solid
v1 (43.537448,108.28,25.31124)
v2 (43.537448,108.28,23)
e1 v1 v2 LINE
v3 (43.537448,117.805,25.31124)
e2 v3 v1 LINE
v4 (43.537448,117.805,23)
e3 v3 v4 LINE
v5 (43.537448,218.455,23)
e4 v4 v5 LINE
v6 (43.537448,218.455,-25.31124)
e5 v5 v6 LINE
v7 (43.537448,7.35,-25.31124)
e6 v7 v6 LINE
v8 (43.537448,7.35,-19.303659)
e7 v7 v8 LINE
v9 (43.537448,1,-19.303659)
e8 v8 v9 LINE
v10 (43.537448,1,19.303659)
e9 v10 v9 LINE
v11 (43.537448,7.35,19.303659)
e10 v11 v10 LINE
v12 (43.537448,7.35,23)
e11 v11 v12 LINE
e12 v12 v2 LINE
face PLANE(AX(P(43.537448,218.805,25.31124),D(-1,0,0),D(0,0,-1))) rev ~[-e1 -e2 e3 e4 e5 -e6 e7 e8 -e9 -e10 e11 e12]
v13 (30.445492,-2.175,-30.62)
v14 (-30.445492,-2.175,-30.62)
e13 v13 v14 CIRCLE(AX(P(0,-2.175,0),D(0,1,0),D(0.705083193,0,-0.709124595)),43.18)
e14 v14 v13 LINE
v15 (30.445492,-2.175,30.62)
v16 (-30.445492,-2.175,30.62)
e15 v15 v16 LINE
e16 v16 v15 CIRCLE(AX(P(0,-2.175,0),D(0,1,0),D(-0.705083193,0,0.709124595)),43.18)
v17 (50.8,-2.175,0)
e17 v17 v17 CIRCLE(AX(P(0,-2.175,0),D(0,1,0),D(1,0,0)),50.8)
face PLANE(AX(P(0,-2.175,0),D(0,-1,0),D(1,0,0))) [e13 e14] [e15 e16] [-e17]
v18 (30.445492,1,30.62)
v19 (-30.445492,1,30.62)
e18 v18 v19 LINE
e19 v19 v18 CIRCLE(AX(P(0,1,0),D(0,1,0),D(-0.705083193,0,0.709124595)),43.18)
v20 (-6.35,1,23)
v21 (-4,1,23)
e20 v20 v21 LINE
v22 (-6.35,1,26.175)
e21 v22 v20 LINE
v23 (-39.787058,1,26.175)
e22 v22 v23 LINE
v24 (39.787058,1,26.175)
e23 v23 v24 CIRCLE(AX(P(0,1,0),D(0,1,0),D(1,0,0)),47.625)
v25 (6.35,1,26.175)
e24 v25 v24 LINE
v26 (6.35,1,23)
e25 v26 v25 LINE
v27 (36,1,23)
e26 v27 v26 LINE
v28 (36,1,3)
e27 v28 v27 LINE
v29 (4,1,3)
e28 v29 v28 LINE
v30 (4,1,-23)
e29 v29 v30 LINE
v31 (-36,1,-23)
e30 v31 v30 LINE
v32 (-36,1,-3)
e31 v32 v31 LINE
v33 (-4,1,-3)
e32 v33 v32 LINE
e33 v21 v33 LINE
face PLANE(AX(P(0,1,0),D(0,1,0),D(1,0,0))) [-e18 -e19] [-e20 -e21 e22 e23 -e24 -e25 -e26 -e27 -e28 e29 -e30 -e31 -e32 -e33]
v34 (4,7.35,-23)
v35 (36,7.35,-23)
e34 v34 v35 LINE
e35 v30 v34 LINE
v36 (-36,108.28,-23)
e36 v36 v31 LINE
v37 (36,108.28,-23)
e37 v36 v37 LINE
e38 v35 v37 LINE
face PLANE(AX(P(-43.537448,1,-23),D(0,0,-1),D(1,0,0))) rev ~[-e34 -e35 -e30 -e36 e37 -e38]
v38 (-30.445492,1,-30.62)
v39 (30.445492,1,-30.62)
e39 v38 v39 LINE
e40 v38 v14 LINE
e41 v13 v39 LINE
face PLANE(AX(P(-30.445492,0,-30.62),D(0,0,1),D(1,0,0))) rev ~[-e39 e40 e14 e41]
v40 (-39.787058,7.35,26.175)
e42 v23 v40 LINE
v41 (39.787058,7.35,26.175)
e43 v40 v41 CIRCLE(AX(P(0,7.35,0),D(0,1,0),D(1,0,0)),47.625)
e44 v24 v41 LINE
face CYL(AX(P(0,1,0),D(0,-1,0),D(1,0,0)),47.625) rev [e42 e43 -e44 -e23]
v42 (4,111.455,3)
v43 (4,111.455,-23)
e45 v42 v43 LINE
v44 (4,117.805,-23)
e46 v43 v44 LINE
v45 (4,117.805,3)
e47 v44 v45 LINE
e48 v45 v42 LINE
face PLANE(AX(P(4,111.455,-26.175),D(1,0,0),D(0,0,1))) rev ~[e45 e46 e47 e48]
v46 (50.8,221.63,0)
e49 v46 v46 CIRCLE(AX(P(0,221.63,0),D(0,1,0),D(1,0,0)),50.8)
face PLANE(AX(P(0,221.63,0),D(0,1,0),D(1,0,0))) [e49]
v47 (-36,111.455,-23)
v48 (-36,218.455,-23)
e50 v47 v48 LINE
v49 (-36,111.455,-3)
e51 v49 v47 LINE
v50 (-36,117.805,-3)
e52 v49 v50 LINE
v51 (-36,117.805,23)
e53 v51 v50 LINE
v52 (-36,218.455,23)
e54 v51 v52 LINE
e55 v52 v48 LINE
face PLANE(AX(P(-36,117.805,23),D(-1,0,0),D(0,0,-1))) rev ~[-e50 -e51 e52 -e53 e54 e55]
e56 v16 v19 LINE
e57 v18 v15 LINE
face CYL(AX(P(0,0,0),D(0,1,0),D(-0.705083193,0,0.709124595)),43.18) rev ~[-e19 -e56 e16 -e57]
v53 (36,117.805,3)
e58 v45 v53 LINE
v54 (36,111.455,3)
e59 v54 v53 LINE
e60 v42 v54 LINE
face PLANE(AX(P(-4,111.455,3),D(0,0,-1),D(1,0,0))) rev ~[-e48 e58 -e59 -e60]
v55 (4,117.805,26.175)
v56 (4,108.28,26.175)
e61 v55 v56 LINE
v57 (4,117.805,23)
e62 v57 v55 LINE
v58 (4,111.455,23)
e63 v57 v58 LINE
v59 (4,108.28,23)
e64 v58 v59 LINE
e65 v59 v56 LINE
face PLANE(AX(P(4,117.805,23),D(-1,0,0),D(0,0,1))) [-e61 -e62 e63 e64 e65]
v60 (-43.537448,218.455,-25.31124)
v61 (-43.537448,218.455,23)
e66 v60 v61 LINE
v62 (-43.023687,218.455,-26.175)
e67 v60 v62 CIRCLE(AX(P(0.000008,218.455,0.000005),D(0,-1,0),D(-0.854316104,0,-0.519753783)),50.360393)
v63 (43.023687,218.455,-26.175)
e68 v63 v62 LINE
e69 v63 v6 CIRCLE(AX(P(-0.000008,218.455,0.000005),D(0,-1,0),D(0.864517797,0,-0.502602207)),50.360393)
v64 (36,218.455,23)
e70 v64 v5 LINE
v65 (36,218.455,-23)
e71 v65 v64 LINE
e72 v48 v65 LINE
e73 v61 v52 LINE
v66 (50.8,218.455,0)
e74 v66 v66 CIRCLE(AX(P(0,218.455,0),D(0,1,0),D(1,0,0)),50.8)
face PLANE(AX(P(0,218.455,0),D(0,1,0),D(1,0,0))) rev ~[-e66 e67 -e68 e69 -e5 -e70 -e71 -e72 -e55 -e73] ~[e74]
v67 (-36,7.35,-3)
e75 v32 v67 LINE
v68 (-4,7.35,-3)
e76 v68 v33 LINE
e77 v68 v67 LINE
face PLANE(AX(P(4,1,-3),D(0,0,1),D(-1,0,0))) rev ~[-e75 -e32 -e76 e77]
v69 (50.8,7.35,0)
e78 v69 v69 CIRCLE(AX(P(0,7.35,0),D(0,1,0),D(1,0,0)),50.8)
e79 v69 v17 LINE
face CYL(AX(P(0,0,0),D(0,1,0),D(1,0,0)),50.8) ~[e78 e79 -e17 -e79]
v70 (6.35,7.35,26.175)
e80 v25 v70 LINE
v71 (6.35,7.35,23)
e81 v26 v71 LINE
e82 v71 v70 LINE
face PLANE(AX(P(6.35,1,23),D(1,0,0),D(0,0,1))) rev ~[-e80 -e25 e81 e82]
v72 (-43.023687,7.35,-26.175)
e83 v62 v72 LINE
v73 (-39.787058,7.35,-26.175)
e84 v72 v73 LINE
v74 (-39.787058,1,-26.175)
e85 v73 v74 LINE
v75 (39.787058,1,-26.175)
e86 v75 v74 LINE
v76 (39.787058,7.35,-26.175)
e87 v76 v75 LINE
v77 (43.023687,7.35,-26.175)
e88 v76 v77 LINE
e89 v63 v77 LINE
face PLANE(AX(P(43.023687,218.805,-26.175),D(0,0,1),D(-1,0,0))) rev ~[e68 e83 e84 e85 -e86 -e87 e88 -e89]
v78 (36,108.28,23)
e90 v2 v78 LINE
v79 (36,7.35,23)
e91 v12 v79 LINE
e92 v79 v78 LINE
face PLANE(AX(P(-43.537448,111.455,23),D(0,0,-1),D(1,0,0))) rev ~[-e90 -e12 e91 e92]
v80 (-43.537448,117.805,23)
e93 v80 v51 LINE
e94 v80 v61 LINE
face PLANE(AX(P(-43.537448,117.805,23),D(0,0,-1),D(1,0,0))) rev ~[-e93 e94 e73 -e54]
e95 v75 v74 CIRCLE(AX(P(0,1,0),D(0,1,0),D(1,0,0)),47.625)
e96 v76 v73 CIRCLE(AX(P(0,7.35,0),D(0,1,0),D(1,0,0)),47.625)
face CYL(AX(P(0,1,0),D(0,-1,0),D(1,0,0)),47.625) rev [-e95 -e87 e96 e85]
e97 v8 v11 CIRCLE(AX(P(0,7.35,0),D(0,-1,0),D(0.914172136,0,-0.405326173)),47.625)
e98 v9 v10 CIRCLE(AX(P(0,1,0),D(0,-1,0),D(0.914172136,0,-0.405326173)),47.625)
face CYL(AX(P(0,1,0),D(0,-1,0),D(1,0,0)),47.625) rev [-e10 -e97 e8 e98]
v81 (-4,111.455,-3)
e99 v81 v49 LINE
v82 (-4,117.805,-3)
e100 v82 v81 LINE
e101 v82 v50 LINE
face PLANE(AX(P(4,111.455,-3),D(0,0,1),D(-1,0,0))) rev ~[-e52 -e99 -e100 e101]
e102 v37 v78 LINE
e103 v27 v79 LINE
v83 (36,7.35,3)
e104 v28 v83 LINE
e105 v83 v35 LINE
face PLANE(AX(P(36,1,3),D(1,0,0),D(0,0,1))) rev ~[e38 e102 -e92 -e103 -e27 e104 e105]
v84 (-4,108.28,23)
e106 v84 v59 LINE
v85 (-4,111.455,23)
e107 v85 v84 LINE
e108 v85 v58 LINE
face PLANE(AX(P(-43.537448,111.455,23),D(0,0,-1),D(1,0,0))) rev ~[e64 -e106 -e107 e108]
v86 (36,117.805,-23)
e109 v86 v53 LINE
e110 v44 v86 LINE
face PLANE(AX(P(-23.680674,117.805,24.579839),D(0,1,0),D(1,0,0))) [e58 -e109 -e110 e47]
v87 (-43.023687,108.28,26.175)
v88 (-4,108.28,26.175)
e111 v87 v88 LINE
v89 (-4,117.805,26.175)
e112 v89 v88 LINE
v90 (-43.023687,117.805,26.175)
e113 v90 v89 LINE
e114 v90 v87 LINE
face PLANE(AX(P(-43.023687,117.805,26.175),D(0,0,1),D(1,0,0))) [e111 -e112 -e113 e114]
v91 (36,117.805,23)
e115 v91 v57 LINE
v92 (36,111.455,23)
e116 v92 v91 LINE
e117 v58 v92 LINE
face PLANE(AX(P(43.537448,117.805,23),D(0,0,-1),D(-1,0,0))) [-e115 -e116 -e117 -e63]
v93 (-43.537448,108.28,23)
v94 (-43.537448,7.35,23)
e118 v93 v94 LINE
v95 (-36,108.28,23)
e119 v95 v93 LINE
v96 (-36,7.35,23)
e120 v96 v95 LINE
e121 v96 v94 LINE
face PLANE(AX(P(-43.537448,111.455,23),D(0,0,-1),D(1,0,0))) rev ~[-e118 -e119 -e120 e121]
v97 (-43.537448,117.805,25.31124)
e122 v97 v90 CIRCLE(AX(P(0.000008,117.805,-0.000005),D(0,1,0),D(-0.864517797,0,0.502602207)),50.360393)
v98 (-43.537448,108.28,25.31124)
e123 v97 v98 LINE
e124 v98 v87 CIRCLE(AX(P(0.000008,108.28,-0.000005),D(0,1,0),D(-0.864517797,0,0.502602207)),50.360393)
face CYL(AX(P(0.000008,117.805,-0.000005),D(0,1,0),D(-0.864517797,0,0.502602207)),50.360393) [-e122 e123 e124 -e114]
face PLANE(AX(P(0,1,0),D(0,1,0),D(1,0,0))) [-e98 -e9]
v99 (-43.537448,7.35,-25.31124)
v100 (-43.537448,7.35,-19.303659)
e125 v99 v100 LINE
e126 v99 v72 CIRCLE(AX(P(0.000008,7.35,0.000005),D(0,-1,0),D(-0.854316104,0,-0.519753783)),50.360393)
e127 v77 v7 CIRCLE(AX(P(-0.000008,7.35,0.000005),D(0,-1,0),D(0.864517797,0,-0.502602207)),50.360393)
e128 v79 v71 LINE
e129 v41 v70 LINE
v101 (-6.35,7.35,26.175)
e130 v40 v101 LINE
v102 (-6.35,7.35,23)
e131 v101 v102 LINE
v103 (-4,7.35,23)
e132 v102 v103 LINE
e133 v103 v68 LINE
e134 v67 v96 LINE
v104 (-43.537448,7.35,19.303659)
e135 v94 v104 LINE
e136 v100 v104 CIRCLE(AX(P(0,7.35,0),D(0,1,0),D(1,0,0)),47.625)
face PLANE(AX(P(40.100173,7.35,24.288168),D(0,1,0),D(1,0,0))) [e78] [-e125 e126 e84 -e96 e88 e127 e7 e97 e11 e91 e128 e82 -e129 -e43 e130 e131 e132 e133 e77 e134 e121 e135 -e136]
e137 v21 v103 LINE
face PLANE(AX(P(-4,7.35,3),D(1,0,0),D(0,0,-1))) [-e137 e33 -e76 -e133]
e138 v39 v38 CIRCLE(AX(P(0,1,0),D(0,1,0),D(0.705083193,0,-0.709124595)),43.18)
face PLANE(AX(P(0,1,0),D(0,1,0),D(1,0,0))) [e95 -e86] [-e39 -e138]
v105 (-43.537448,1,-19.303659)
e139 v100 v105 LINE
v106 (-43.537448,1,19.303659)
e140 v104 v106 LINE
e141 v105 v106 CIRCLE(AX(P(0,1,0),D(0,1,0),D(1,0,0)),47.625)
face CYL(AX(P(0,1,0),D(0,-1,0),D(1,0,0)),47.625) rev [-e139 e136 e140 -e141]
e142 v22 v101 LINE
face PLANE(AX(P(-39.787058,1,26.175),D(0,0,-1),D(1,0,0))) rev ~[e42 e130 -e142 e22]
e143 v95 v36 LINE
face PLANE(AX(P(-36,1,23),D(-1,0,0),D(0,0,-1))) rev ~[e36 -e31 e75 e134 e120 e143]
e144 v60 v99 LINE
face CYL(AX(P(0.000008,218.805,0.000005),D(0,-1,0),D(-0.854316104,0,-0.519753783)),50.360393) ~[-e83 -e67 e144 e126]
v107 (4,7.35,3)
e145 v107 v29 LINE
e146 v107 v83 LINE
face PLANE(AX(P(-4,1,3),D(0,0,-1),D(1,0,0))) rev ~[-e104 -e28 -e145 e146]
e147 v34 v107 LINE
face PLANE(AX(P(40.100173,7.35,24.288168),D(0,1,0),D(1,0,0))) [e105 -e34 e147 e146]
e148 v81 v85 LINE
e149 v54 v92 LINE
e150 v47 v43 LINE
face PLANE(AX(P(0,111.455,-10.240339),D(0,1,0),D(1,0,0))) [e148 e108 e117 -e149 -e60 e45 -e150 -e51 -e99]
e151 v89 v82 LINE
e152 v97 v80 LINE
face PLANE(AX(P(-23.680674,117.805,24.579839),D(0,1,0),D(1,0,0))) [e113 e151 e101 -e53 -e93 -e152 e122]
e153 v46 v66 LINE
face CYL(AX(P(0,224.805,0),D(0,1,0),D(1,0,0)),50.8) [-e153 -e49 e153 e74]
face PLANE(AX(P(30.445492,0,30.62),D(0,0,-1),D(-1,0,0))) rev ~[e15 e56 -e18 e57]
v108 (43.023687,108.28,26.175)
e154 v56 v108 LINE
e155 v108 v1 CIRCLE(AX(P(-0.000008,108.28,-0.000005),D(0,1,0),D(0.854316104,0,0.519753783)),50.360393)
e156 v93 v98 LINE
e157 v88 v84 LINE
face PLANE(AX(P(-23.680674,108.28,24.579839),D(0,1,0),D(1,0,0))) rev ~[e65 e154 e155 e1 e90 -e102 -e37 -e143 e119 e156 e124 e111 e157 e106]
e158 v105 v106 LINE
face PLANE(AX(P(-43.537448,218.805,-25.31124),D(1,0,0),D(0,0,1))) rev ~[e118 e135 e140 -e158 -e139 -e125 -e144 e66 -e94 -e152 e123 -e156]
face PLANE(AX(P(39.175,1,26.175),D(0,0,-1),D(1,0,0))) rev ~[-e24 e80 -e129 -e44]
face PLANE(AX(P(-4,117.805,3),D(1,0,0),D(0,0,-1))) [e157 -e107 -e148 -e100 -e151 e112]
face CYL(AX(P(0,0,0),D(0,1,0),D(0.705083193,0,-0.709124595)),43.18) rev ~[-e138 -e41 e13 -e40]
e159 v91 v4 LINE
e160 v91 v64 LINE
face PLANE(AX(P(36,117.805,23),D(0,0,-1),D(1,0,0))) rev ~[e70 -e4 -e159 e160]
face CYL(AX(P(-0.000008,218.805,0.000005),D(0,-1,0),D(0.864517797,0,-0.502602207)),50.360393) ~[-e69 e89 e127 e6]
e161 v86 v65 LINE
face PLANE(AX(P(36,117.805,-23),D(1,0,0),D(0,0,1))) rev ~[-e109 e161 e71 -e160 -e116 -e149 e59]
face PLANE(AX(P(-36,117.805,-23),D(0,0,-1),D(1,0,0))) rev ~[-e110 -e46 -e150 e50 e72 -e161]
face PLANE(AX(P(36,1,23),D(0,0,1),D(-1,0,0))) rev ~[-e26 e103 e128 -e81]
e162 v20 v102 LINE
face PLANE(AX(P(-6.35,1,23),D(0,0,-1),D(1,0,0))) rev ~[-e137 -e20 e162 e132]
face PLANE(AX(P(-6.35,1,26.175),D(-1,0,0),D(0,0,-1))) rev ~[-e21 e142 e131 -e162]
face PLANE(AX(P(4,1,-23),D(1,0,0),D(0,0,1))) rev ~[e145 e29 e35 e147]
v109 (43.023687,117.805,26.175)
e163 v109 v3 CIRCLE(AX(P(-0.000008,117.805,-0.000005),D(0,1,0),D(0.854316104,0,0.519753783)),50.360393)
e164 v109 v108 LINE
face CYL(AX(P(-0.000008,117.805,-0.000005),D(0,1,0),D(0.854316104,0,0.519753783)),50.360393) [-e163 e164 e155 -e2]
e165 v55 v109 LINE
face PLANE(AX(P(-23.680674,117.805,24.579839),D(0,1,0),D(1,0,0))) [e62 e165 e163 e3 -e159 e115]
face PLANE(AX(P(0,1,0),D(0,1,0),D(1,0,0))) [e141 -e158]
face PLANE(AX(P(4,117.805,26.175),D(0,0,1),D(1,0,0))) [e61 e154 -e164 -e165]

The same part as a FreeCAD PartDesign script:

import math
import FreeCAD as App
import Part
import Sketcher

V = App.Vector

doc = App.newDocument("Part")
params = doc.addObject("Spreadsheet::Sheet", "Params")
for row, (alias, value) in enumerate([
    ("sketch1_diameter", "101.6 mm"),
    ("pad1_length", "1 mm"),
    ("sketch2_width", "40 mm"),
    ("sketch2_height", "20 mm"),
    ("sketch2_width2", "29.65 mm"),
    ("sketch2_height2", "52.35 mm"),
    ("pad2_length", "6.35 mm"),
    ("sketch3_diameter", "101.6 mm"),
    ("sketch3_diameter2", "95.25 mm"),
    ("pad3_length", "6.35 mm"),
    ("sketch4_height", "46 mm"),
    ("pad4_length", "107.28 mm"),
    ("pad5_length", "107.28 mm"),
    ("pad6_length", "3.175 mm"),
    ("sketch7_width", "40 mm"),
    ("sketch7_width2", "32 mm"),
    ("sketch7_height", "20 mm"),
    ("pad7_length", "6.35 mm"),
    ("pad8_length", "6.35 mm"),
    ("pad9_length", "9.525 mm"),
    ("sketch10_width", "72 mm"),
    ("sketch10_height", "46 mm"),
    ("pad10_length", "101 mm"),
    ("sketch11_width", "8 mm"),
    ("sketch11_height", "6.35 mm"),
    ("pad11_length", "3.175 mm"),
    ("sketch12_width", "8 mm"),
    ("sketch12_height", "6 mm"),
    ("pocket1_length", "6.35 mm"),
    ("sketch13_width", "8 mm"),
    ("sketch13_height", "6 mm"),
    ("pocket2_length", "6.35 mm"),
    ("pad12_length", "6 mm"),
    ("sketch15_radius", "43.18 mm"),
    ("sketch16_diameter", "101.6 mm"),
    ("pad13_length", "6.35 mm"),
    ("sketch17_diameter", "101.6 mm"),
    ("pocket4_length", "3.175 mm"),
    ("sketch18_diameter", "101.6 mm"),
    ("sketch18_radius", "43.18 mm"),
    ("pad14_length", "5.35 mm"),
    ("pocket5_length", "3.175 mm"),
], start=1):
    params.set(f"A{row}", alias)
    params.set(f"B{row}", "=" + value)
    params.setAlias(f"B{row}", alias)

body = doc.addObject("PartDesign::Body", "Body")

# Sketch on XZ plane
sketch1 = doc.addObject("Sketcher::SketchObject", "Sketch")
body.addObject(sketch1)
sketch1.AttachmentSupport = (doc.XZ_Plane, [""])
sketch1.MapMode = "FlatFace"
sketch1.addGeometry(Part.Circle(V(0, 0, 0), V(0, 0, 1), 51), False)
sketch1.addConstraint([
    Sketcher.Constraint("Coincident", 0, 3, -1, 1),
    Sketcher.Constraint("Diameter", 0, 101.6),
])
sketch1.setExpression("Constraints[1]", "Params.sketch1_diameter")
pad1 = doc.addObject("PartDesign::Pad", "Pad")
body.addObject(pad1)
pad1.Profile = sketch1
pad1.setExpression("Length", "Params.pad1_length")
pad1.Reversed = True

# Sketch on XZ plane
sketch2 = doc.addObject("Sketcher::SketchObject", "Sketch001")
body.addObject(sketch2)
sketch2.AttachmentSupport = (doc.XZ_Plane, [""])
sketch2.MapMode = "FlatFace"
sketch2.AttachmentOffset = App.Placement(V(0, 0, -1), App.Rotation())
sketch2.addGeometry([
    Part.LineSegment(V(-36, -23, 0), V(-6.3, -23, 0)),  # 0
    Part.LineSegment(V(-6.3, -23, 0), V(-6.3, -26.2, 0)),  # 1
    Part.LineSegment(V(-6.3, -26.2, 0), V(-39.2, -26.2, 0)),  # 2
    Part.LineSegment(V(-39.2, -26.2, 0), V(-39.2, 26.2, 0)),  # 3
    Part.LineSegment(V(-39.2, 26.2, 0), V(-6.3, 26.2, 0)),  # 4
    Part.LineSegment(V(-6.3, 26.2, 0), V(-6.3, 23, 0)),  # 5
    Part.LineSegment(V(-6.3, 23, 0), V(-4, 23, 0)),  # 6
    Part.LineSegment(V(-4, 23, 0), V(-4, 3, 0)),  # 7
    Part.LineSegment(V(-4, 3, 0), V(36, 3, 0)),  # 8
    Part.LineSegment(V(36, 3, 0), V(36, 23, 0)),  # 9
    Part.LineSegment(V(36, 23, 0), V(6.3, 23, 0)),  # 10
    Part.LineSegment(V(6.3, 23, 0), V(6.3, 26.2, 0)),  # 11
    Part.LineSegment(V(6.3, 26.2, 0), V(39.2, 26.2, 0)),  # 12
    Part.LineSegment(V(39.2, 26.2, 0), V(39.2, -26.2, 0)),  # 13
    Part.LineSegment(V(39.2, -26.2, 0), V(6.3, -26.2, 0)),  # 14
    Part.LineSegment(V(6.3, -26.2, 0), V(6.3, -23, 0)),  # 15
    Part.LineSegment(V(6.3, -23, 0), V(4, -23, 0)),  # 16
    Part.LineSegment(V(4, -23, 0), V(4, -3, 0)),  # 17
    Part.LineSegment(V(4, -3, 0), V(-36, -3, 0)),  # 18
    Part.LineSegment(V(-36, -3, 0), V(-36, -23, 0)),  # 19
], False)
sketch2.addConstraint([
    Sketcher.Constraint("Coincident", 0, 2, 1, 1),
    Sketcher.Constraint("Coincident", 1, 2, 2, 1),
    Sketcher.Constraint("Coincident", 2, 2, 3, 1),
    Sketcher.Constraint("Coincident", 3, 2, 4, 1),
    Sketcher.Constraint("Coincident", 4, 2, 5, 1),
    Sketcher.Constraint("Coincident", 5, 2, 6, 1),
    Sketcher.Constraint("Coincident", 6, 2, 7, 1),
    Sketcher.Constraint("Coincident", 7, 2, 8, 1),
    Sketcher.Constraint("Coincident", 8, 2, 9, 1),
    Sketcher.Constraint("Coincident", 9, 2, 10, 1),
    Sketcher.Constraint("Coincident", 10, 2, 11, 1),
    Sketcher.Constraint("Coincident", 11, 2, 12, 1),
    Sketcher.Constraint("Coincident", 12, 2, 13, 1),
    Sketcher.Constraint("Coincident", 13, 2, 14, 1),
    Sketcher.Constraint("Coincident", 14, 2, 15, 1),
    Sketcher.Constraint("Coincident", 15, 2, 16, 1),
    Sketcher.Constraint("Coincident", 16, 2, 17, 1),
    Sketcher.Constraint("Coincident", 17, 2, 18, 1),
    Sketcher.Constraint("Coincident", 18, 2, 19, 1),
    Sketcher.Constraint("Coincident", 19, 2, 0, 1),
    Sketcher.Constraint("Horizontal", 0),
    Sketcher.Constraint("Vertical", 1),
    Sketcher.Constraint("Horizontal", 2),
    Sketcher.Constraint("Vertical", 3),
    Sketcher.Constraint("Horizontal", 4),
    Sketcher.Constraint("Vertical", 5),
    Sketcher.Constraint("Horizontal", 6),
    Sketcher.Constraint("Vertical", 7),
    Sketcher.Constraint("Horizontal", 8),
    Sketcher.Constraint("Vertical", 9),
    Sketcher.Constraint("Horizontal", 10),
    Sketcher.Constraint("Vertical", 11),
    Sketcher.Constraint("Horizontal", 12),
    Sketcher.Constraint("Vertical", 13),
    Sketcher.Constraint("Horizontal", 14),
    Sketcher.Constraint("Vertical", 15),
    Sketcher.Constraint("Horizontal", 16),
    Sketcher.Constraint("Vertical", 17),
    Sketcher.Constraint("Horizontal", 18),
    Sketcher.Constraint("Vertical", 19),
    Sketcher.Constraint("Symmetric", 0, 2, 10, 2, -1, 1),
    Sketcher.Constraint("Symmetric", 2, 2, 12, 2, -1, 1),
    Sketcher.Constraint("Symmetric", 4, 2, 14, 2, -1, 1),
    Sketcher.Constraint("Symmetric", 6, 2, 16, 2, -1, 1),
    Sketcher.Constraint("Symmetric", 8, 2, 18, 2, -1, 1),
    Sketcher.Constraint("Symmetric", 5, 2, 10, 2, -2),
    Sketcher.Constraint("Horizontal", 4, 2, 11, 2),
    Sketcher.Constraint("DistanceX", 8, 1, 8, 2, 40.0),
    Sketcher.Constraint("DistanceY", 7, 2, 7, 1, 20.0),
    Sketcher.Constraint("DistanceY", 0, 2, -1, 1, 23.0),
    Sketcher.Constraint("DistanceX", 6, 2, -1, 1, 4.0),
    Sketcher.Constraint("DistanceX", 0, 1, 0, 2, 29.65),
    Sketcher.Constraint("DistanceY", 3, 1, 3, 2, 52.35),
    Sketcher.Constraint("DistanceX", 2, 2, 2, 1, 32.825),
])
sketch2.setExpression("Constraints[47]", "Params.sketch2_width")
sketch2.setExpression("Constraints[48]", "Params.sketch2_height")
sketch2.setExpression("Constraints[51]", "Params.sketch2_width2")
sketch2.setExpression("Constraints[52]", "Params.sketch2_height2")
pad2 = doc.addObject("PartDesign::Pad", "Pad001")
body.addObject(pad2)
pad2.Profile = sketch2
pad2.setExpression("Length", "Params.pad2_length")
pad2.Reversed = True

# Sketch on XZ plane
sketch3 = doc.addObject("Sketcher::SketchObject", "Sketch002")
body.addObject(sketch3)
sketch3.AttachmentSupport = (doc.XZ_Plane, [""])
sketch3.MapMode = "FlatFace"
sketch3.AttachmentOffset = App.Placement(V(0, 0, -1), App.Rotation())
sketch3.addGeometry([
    Part.Circle(V(0, 0, 0), V(0, 0, 1), 51),
    Part.Circle(V(0, 0, 0), V(0, 0, 1), 48),
], False)
sketch3.addConstraint([
    Sketcher.Constraint("Coincident", 0, 3, -1, 1),
    Sketcher.Constraint("Coincident", 1, 3, -1, 1),
    Sketcher.Constraint("Diameter", 0, 101.6),
    Sketcher.Constraint("Diameter", 1, 95.25),
])
sketch3.setExpression("Constraints[2]", "Params.sketch3_diameter")
sketch3.setExpression("Constraints[3]", "Params.sketch3_diameter2")
pad3 = doc.addObject("PartDesign::Pad", "Pad002")
body.addObject(pad3)
pad3.Profile = sketch3
pad3.setExpression("Length", "Params.pad3_length")
pad3.Reversed = True

# Sketch on XZ plane
sketch4 = doc.addObject("Sketcher::SketchObject", "Sketch003")
body.addObject(sketch4)
sketch4.AttachmentSupport = (doc.XZ_Plane, [""])
sketch4.MapMode = "FlatFace"
sketch4.AttachmentOffset = App.Placement(V(0, 0, -1), App.Rotation())
sketch4.addGeometry([
    Part.LineSegment(V(-44, 23, 0), V(-36, 23, 0)),  # 0
    Part.LineSegment(V(-36, 23, 0), V(-36, -23, 0)),  # 1
    Part.LineSegment(V(-36, -23, 0), V(-44, -23, 0)),  # 2
    Part.LineSegment(V(-44, -23, 0), V(-44, 23, 0)),  # 3
    Part.LineSegment(V(36, -23, 0), V(36, 23, 0)),  # 4
    Part.LineSegment(V(36, 23, 0), V(44, 23, 0)),  # 5
    Part.LineSegment(V(44, 23, 0), V(44, -23, 0)),  # 6
    Part.LineSegment(V(44, -23, 0), V(36, -23, 0)),  # 7
], False)
sketch4.addConstraint([
    Sketcher.Constraint("Coincident", 0, 2, 1, 1),
    Sketcher.Constraint("Coincident", 1, 2, 2, 1),
    Sketcher.Constraint("Coincident", 2, 2, 3, 1),
    Sketcher.Constraint("Coincident", 3, 2, 0, 1),
    Sketcher.Constraint("Coincident", 4, 2, 5, 1),
    Sketcher.Constraint("Coincident", 5, 2, 6, 1),
    Sketcher.Constraint("Coincident", 6, 2, 7, 1),
    Sketcher.Constraint("Coincident", 7, 2, 4, 1),
    Sketcher.Constraint("Horizontal", 0),
    Sketcher.Constraint("Vertical", 1),
    Sketcher.Constraint("Horizontal", 2),
    Sketcher.Constraint("Vertical", 3),
    Sketcher.Constraint("Vertical", 4),
    Sketcher.Constraint("Horizontal", 5),
    Sketcher.Constraint("Vertical", 6),
    Sketcher.Constraint("Horizontal", 7),
    Sketcher.Constraint("Symmetric", 1, 2, 4, 2, -1, 1),
    Sketcher.Constraint("Symmetric", 3, 2, 6, 2, -1, 1),
    Sketcher.Constraint("Horizontal", 3, 2, 4, 2),
    Sketcher.Constraint("DistanceY", 1, 2, 1, 1, 46.0),
    Sketcher.Constraint("DistanceX", 0, 2, -1, 1, 36.0),
    Sketcher.Constraint("DistanceX", 0, 1, 0, 2, 7.537448),
])
sketch4.setExpression("Constraints[19]", "Params.sketch4_height")
pad4 = doc.addObject("PartDesign::Pad", "Pad003")
body.addObject(pad4)
pad4.Profile = sketch4
pad4.setExpression("Length", "Params.pad4_length")
pad4.Reversed = True

# Sketch on XZ plane
sketch5 = doc.addObject("Sketcher::SketchObject", "Sketch004")
body.addObject(sketch5)
sketch5.AttachmentSupport = (doc.XZ_Plane, [""])
sketch5.MapMode = "FlatFace"
sketch5.AttachmentOffset = App.Placement(V(0, 0, -1), App.Rotation())
sketch5.addGeometry([
    Part.LineSegment(V(-43.5, -25.3, 0), V(-43.5, -23, 0)),  # 0
    Part.LineSegment(V(-43.5, -23, 0), V(43.5, -23, 0)),  # 1
    Part.LineSegment(V(43.5, -23, 0), V(43.5, -25.3, 0)),  # 2
    Part.ArcOfCircle(Part.Circle(V(0, 0, 0), V(0, 0, 1), 50.4), math.radians(-31.32), math.radians(-30.17)),  # 3
    Part.LineSegment(V(43, -26.2, 0), V(-43, -26.2, 0)),  # 4
    Part.ArcOfCircle(Part.Circle(V(0, 0, 0), V(0, 0, 1), 50.4), math.radians(-149.83), math.radians(-148.68)),  # 5
], False)
sketch5.addConstraint([
    Sketcher.Constraint("Coincident", 0, 2, 1, 1),
    Sketcher.Constraint("Coincident", 1, 2, 2, 1),
    Sketcher.Constraint("Coincident", 2, 2, 3, 2),
    Sketcher.Constraint("Coincident", 3, 1, 4, 1),
    Sketcher.Constraint("Coincident", 4, 2, 5, 2),
    Sketcher.Constraint("Coincident", 5, 1, 0, 1),
    Sketcher.Constraint("Vertical", 0),
    Sketcher.Constraint("Horizontal", 1),
    Sketcher.Constraint("Vertical", 2),
    Sketcher.Constraint("Horizontal", 4),
    Sketcher.Constraint("Coincident", 3, 3, -1, 1),
    Sketcher.Constraint("Coincident", 5, 3, -1, 1),
    Sketcher.Constraint("Equal", 3, 5),
    Sketcher.Constraint("Horizontal", 2, 2, 5, 1),
    Sketcher.Constraint("DistanceY", 0, 2, -1, 1, 23.0),
    Sketcher.Constraint("DistanceY", 3, 1, -1, 1, 26.175),
    Sketcher.Constraint("Radius", 3, 50.360393),
    Sketcher.Constraint("DistanceY", 0, 1, 0, 2, 2.31124),
])
pad5 = doc.addObject("PartDesign::Pad", "Pad004")
body.addObject(pad5)
pad5.Profile = sketch5
pad5.setExpression("Length", "Params.pad5_length")
pad5.Reversed = True

# Sketch on XZ plane
sketch6 = doc.addObject("Sketcher::SketchObject", "Sketch005")
body.addObject(sketch6)
sketch6.AttachmentSupport = (doc.XZ_Plane, [""])
sketch6.MapMode = "FlatFace"
sketch6.AttachmentOffset = App.Placement(V(0, 0, -108.28), App.Rotation())
sketch6.addGeometry([
    Part.LineSegment(V(43.5, 23, 0), V(43.5, -25.3, 0)),  # 0
    Part.ArcOfCircle(Part.Circle(V(0, 0, 0), V(0, 0, 1), 50.4), math.radians(-31.32), math.radians(-30.17)),  # 1
    Part.LineSegment(V(43, -26.2, 0), V(-43, -26.2, 0)),  # 2
    Part.ArcOfCircle(Part.Circle(V(0, 0, 0), V(0, 0, 1), 50.4), math.radians(-149.83), math.radians(-148.68)),  # 3
    Part.LineSegment(V(-43.5, -25.3, 0), V(-43.5, 23, 0)),  # 4
    Part.LineSegment(V(-43.5, 23, 0), V(43.5, 23, 0)),  # 5
], False)
sketch6.addConstraint([
    Sketcher.Constraint("Coincident", 0, 2, 1, 2),
    Sketcher.Constraint("Coincident", 1, 1, 2, 1),
    Sketcher.Constraint("Coincident", 2, 2, 3, 2),
    Sketcher.Constraint("Coincident", 3, 1, 4, 1),
    Sketcher.Constraint("Coincident", 4, 2, 5, 1),
    Sketcher.Constraint("Coincident", 5, 2, 0, 1),
    Sketcher.Constraint("Vertical", 0),
    Sketcher.Constraint("Horizontal", 2),
    Sketcher.Constraint("Vertical", 4),
    Sketcher.Constraint("Horizontal", 5),
    Sketcher.Constraint("Coincident", 1, 3, -1, 1),
    Sketcher.Constraint("Coincident", 3, 3, -1, 1),
    Sketcher.Constraint("Equal", 1, 3),
    Sketcher.Constraint("Horizontal", 0, 2, 3, 1),
    Sketcher.Constraint("DistanceY", -1, 1, 4, 2, 23.0),
    Sketcher.Constraint("DistanceY", 1, 1, -1, 1, 26.175),
    Sketcher.Constraint("Radius", 1, 50.360393),
    Sketcher.Constraint("DistanceY", 0, 2, 0, 1, 48.31124),
])
pad6 = doc.addObject("PartDesign::Pad", "Pad005")
body.addObject(pad6)
pad6.Profile = sketch6
pad6.setExpression("Length", "Params.pad6_length")
pad6.Reversed = True

# Sketch on XZ plane
sketch7 = doc.addObject("Sketcher::SketchObject", "Sketch006")
body.addObject(sketch7)
sketch7.AttachmentSupport = (doc.XZ_Plane, [""])
sketch7.MapMode = "FlatFace"
sketch7.AttachmentOffset = App.Placement(V(0, 0, -111.455), App.Rotation())
sketch7.addGeometry([
    Part.LineSegment(V(-4, 3, 0), V(36, 3, 0)),  # 0
    Part.LineSegment(V(36, 3, 0), V(36, 23, 0)),  # 1
    Part.LineSegment(V(36, 23, 0), V(43.5, 23, 0)),  # 2
    Part.LineSegment(V(43.5, 23, 0), V(43.5, -25.3, 0)),  # 3
    Part.ArcOfCircle(Part.Circle(V(0, 0, 0), V(0, 0, 1), 50.4), math.radians(-31.32), math.radians(-30.17)),  # 4
    Part.LineSegment(V(43, -26.2, 0), V(4, -26.2, 0)),  # 5
    Part.LineSegment(V(4, -26.2, 0), V(4, -3, 0)),  # 6
    Part.LineSegment(V(4, -3, 0), V(-36, -3, 0)),  # 7
    Part.LineSegment(V(-36, -3, 0), V(-36, -23, 0)),  # 8
    Part.LineSegment(V(-36, -23, 0), V(-4, -23, 0)),  # 9
    Part.LineSegment(V(-4, -23, 0), V(-4, -26.2, 0)),  # 10
    Part.LineSegment(V(-4, -26.2, 0), V(-43, -26.2, 0)),  # 11
    Part.ArcOfCircle(Part.Circle(V(0, 0, 0), V(0, 0, 1), 50.4), math.radians(-149.83), math.radians(-148.68)),  # 12
    Part.LineSegment(V(-43.5, -25.3, 0), V(-43.5, 23, 0)),  # 13
    Part.LineSegment(V(-43.5, 23, 0), V(-4, 23, 0)),  # 14
    Part.LineSegment(V(-4, 23, 0), V(-4, 3, 0)),  # 15
], False)
sketch7.addConstraint([
    Sketcher.Constraint("Coincident", 0, 2, 1, 1),
    Sketcher.Constraint("Coincident", 1, 2, 2, 1),
    Sketcher.Constraint("Coincident", 2, 2, 3, 1),
    Sketcher.Constraint("Coincident", 3, 2, 4, 2),
    Sketcher.Constraint("Coincident", 4, 1, 5, 1),
    Sketcher.Constraint("Coincident", 5, 2, 6, 1),
    Sketcher.Constraint("Coincident", 6, 2, 7, 1),
    Sketcher.Constraint("Coincident", 7, 2, 8, 1),
    Sketcher.Constraint("Coincident", 8, 2, 9, 1),
    Sketcher.Constraint("Coincident", 9, 2, 10, 1),
    Sketcher.Constraint("Coincident", 10, 2, 11, 1),
    Sketcher.Constraint("Coincident", 11, 2, 12, 2),
    Sketcher.Constraint("Coincident", 12, 1, 13, 1),
    Sketcher.Constraint("Coincident", 13, 2, 14, 1),
    Sketcher.Constraint("Coincident", 14, 2, 15, 1),
    Sketcher.Constraint("Coincident", 15, 2, 0, 1),
    Sketcher.Constraint("Horizontal", 0),
    Sketcher.Constraint("Vertical", 1),
    Sketcher.Constraint("Horizontal", 2),
    Sketcher.Constraint("Vertical", 3),
    Sketcher.Constraint("Horizontal", 5),
    Sketcher.Constraint("Vertical", 6),
    Sketcher.Constraint("Horizontal", 7),
    Sketcher.Constraint("Vertical", 8),
    Sketcher.Constraint("Horizontal", 9),
    Sketcher.Constraint("Vertical", 10),
    Sketcher.Constraint("Horizontal", 11),
    Sketcher.Constraint("Vertical", 13),
    Sketcher.Constraint("Horizontal", 14),
    Sketcher.Constraint("Vertical", 15),
    Sketcher.Constraint("Coincident", 4, 3, -1, 1),
    Sketcher.Constraint("Coincident", 12, 3, -1, 1),
    Sketcher.Constraint("Equal", 4, 12),
    Sketcher.Constraint("Symmetric", 0, 2, 7, 2, -1, 1),
    Sketcher.Constraint("Symmetric", 5, 2, 10, 2, -2),
    Sketcher.Constraint("Symmetric", 2, 2, 13, 2, -2),
    Sketcher.Constraint("Symmetric", 9, 2, 14, 2, -1),
    Sketcher.Constraint("DistanceX", 0, 1, 0, 2, 40.0),
    Sketcher.Constraint("DistanceX", 9, 1, 9, 2, 32.0),
    Sketcher.Constraint("DistanceY", 1, 1, 1, 2, 20.0),
    Sketcher.Constraint("DistanceY", -1, 1, 0, 2, 3.0),
    Sketcher.Constraint("DistanceY", 6, 1, 6, 2, 23.175),
    Sketcher.Constraint("Radius", 4, 50.360393),
    Sketcher.Constraint("DistanceY", 3, 2, 3, 1, 48.31124),
])
sketch7.setExpression("Constraints[37]", "Params.sketch7_width")
sketch7.setExpression("Constraints[38]", "Params.sketch7_width2")
sketch7.setExpression("Constraints[39]", "Params.sketch7_height")
pad7 = doc.addObject("PartDesign::Pad", "Pad006")
body.addObject(pad7)
pad7.Profile = sketch7
pad7.setExpression("Length", "Params.pad7_length")
pad7.Reversed = True

# Sketch on XZ plane
sketch8 = doc.addObject("Sketcher::SketchObject", "Sketch007")
body.addObject(sketch8)
sketch8.AttachmentSupport = (doc.XZ_Plane, [""])
sketch8.MapMode = "FlatFace"
sketch8.AttachmentOffset = App.Placement(V(0, 0, -1), App.Rotation())
sketch8.addGeometry([
    Part.LineSegment(V(39.2, 26.2, 0), V(39.8, 26.2, 0)),  # 0
    Part.ArcOfCircle(Part.Circle(V(0, 0, 0), V(0, 0, 1), 47.6), math.radians(28.88), math.radians(33.34)),  # 1
    Part.LineSegment(V(41.7, 23, 0), V(39.2, 23, 0)),  # 2
    Part.LineSegment(V(39.2, 23, 0), V(39.2, 26.2, 0)),  # 3
    Part.LineSegment(V(-39.8, 26.2, 0), V(-39.2, 26.2, 0)),  # 4
    Part.LineSegment(V(-39.2, 26.2, 0), V(-39.2, 23, 0)),  # 5
    Part.LineSegment(V(-39.2, 23, 0), V(-41.7, 23, 0)),  # 6
    Part.ArcOfCircle(Part.Circle(V(0, 0, 0), V(0, 0, 1), 47.6), math.radians(146.66), math.radians(151.12)),  # 7
], False)
sketch8.addConstraint([
    Sketcher.Constraint("Coincident", 0, 2, 1, 2),
    Sketcher.Constraint("Coincident", 1, 1, 2, 1),
    Sketcher.Constraint("Coincident", 2, 2, 3, 1),
    Sketcher.Constraint("Coincident", 3, 2, 0, 1),
    Sketcher.Constraint("Coincident", 4, 2, 5, 1),
    Sketcher.Constraint("Coincident", 5, 2, 6, 1),
    Sketcher.Constraint("Coincident", 6, 2, 7, 2),
    Sketcher.Constraint("Coincident", 7, 1, 4, 1),
    Sketcher.Constraint("Horizontal", 0),
    Sketcher.Constraint("Horizontal", 2),
    Sketcher.Constraint("Vertical", 3),
    Sketcher.Constraint("Horizontal", 4),
    Sketcher.Constraint("Vertical", 5),
    Sketcher.Constraint("Horizontal", 6),
    Sketcher.Constraint("Coincident", 1, 3, -1, 1),
    Sketcher.Constraint("Coincident", 7, 3, -1, 1),
    Sketcher.Constraint("Equal", 1, 7),
    Sketcher.Constraint("Symmetric", 3, 2, 4, 2, -2),
    Sketcher.Constraint("Horizontal", 2, 2, 5, 2),
    Sketcher.Constraint("DistanceY", -1, 1, 1, 1, 23.0),
    Sketcher.Constraint("Radius", 1, 47.625),
    Sketcher.Constraint("DistanceY", 3, 1, 3, 2, 3.175),
    Sketcher.Constraint("DistanceX", 4, 2, 3, 2, 78.35),
])
pad8 = doc.addObject("PartDesign::Pad", "Pad007")
body.addObject(pad8)
pad8.Profile = sketch8
pad8.setExpression("Length", "Params.pad8_length")
pad8.Reversed = True

# Sketch on XZ plane
sketch9 = doc.addObject("Sketcher::SketchObject", "Sketch008")
body.addObject(sketch9)
sketch9.AttachmentSupport = (doc.XZ_Plane, [""])
sketch9.MapMode = "FlatFace"
sketch9.AttachmentOffset = App.Placement(V(0, 0, -117.805), App.Rotation())
sketch9.addGeometry([
    Part.LineSegment(V(-4, 23, 0), V(-43.5, 23, 0)),  # 0
    Part.LineSegment(V(-43.5, 23, 0), V(-43.5, 25.3, 0)),  # 1
    Part.ArcOfCircle(Part.Circle(V(0, 0, 0), V(0, 0, 1), 50.4), math.radians(148.68), math.radians(149.83)),  # 2
    Part.LineSegment(V(-43, 26.2, 0), V(-4, 26.2, 0)),  # 3
    Part.LineSegment(V(-4, 26.2, 0), V(-4, 23, 0)),  # 4
    Part.LineSegment(V(43.5, 23, 0), V(4, 23, 0)),  # 5
    Part.LineSegment(V(4, 23, 0), V(4, 26.2, 0)),  # 6
    Part.LineSegment(V(4, 26.2, 0), V(43, 26.2, 0)),  # 7
    Part.ArcOfCircle(Part.Circle(V(0, 0, 0), V(0, 0, 1), 50.4), math.radians(30.17), math.radians(31.32)),  # 8
    Part.LineSegment(V(43.5, 25.3, 0), V(43.5, 23, 0)),  # 9
], False)
sketch9.addConstraint([
    Sketcher.Constraint("Coincident", 0, 2, 1, 1),
    Sketcher.Constraint("Coincident", 1, 2, 2, 2),
    Sketcher.Constraint("Coincident", 2, 1, 3, 1),
    Sketcher.Constraint("Coincident", 3, 2, 4, 1),
    Sketcher.Constraint("Coincident", 4, 2, 0, 1),
    Sketcher.Constraint("Coincident", 5, 2, 6, 1),
    Sketcher.Constraint("Coincident", 6, 2, 7, 1),
    Sketcher.Constraint("Coincident", 7, 2, 8, 2),
    Sketcher.Constraint("Coincident", 8, 1, 9, 1),
    Sketcher.Constraint("Coincident", 9, 2, 5, 1),
    Sketcher.Constraint("Horizontal", 0),
    Sketcher.Constraint("Vertical", 1),
    Sketcher.Constraint("Horizontal", 3),
    Sketcher.Constraint("Vertical", 4),
    Sketcher.Constraint("Horizontal", 5),
    Sketcher.Constraint("Vertical", 6),
    Sketcher.Constraint("Horizontal", 7),
    Sketcher.Constraint("Vertical", 9),
    Sketcher.Constraint("Coincident", 2, 3, -1, 1),
    Sketcher.Constraint("Coincident", 8, 3, -1, 1),
    Sketcher.Constraint("Equal", 2, 8),
    Sketcher.Constraint("Symmetric", 4, 2, 5, 2, -2),
    Sketcher.Constraint("Horizontal", 3, 2, 6, 2),
    Sketcher.Constraint("Horizontal", 1, 2, 8, 1),
    Sketcher.Constraint("DistanceY", -1, 1, 0, 2, 23.0),
    Sketcher.Constraint("DistanceX", 3, 2, -1, 1, 4.0),
    Sketcher.Constraint("DistanceY", 4, 2, 4, 1, 3.175),
    Sketcher.Constraint("Radius", 2, 50.360393),
    Sketcher.Constraint("DistanceY", 1, 1, 1, 2, 2.31124),
])
pad9 = doc.addObject("PartDesign::Pad", "Pad008")
body.addObject(pad9)
pad9.Profile = sketch9
pad9.setExpression("Length", "Params.pad9_length")

# Sketch on XZ plane
sketch10 = doc.addObject("Sketcher::SketchObject", "Sketch009")
body.addObject(sketch10)
sketch10.AttachmentSupport = (doc.XZ_Plane, [""])
sketch10.MapMode = "FlatFace"
sketch10.AttachmentOffset = App.Placement(V(0, 0, -117.805), App.Rotation())
sketch10.addGeometry([
    Part.ArcOfCircle(Part.Circle(V(0, 0, 0), V(0, 0, 1), 50.4), math.radians(-31.32), math.radians(-30.17)),  # 0
    Part.LineSegment(V(43, -26.2, 0), V(-43, -26.2, 0)),  # 1
    Part.ArcOfCircle(Part.Circle(V(0, 0, 0), V(0, 0, 1), 50.4), math.radians(-149.83), math.radians(-148.68)),  # 2
    Part.LineSegment(V(-43.5, -25.3, 0), V(-43.5, 23, 0)),  # 3
    Part.LineSegment(V(-43.5, 23, 0), V(-36, 23, 0)),  # 4
    Part.LineSegment(V(-36, 23, 0), V(-36, -23, 0)),  # 5
    Part.LineSegment(V(-36, -23, 0), V(36, -23, 0)),  # 6
    Part.LineSegment(V(36, -23, 0), V(36, 23, 0)),  # 7
    Part.LineSegment(V(36, 23, 0), V(43.5, 23, 0)),  # 8
    Part.LineSegment(V(43.5, 23, 0), V(43.5, -25.3, 0)),  # 9
], False)
sketch10.addConstraint([
    Sketcher.Constraint("Coincident", 0, 1, 1, 1),
    Sketcher.Constraint("Coincident", 1, 2, 2, 2),
    Sketcher.Constraint("Coincident", 2, 1, 3, 1),
    Sketcher.Constraint("Coincident", 3, 2, 4, 1),
    Sketcher.Constraint("Coincident", 4, 2, 5, 1),
    Sketcher.Constraint("Coincident", 5, 2, 6, 1),
    Sketcher.Constraint("Coincident", 6, 2, 7, 1),
    Sketcher.Constraint("Coincident", 7, 2, 8, 1),
    Sketcher.Constraint("Coincident", 8, 2, 9, 1),
    Sketcher.Constraint("Coincident", 9, 2, 0, 2),
    Sketcher.Constraint("Horizontal", 1),
    Sketcher.Constraint("Vertical", 3),
    Sketcher.Constraint("Horizontal", 4),
    Sketcher.Constraint("Vertical", 5),
    Sketcher.Constraint("Horizontal", 6),
    Sketcher.Constraint("Vertical", 7),
    Sketcher.Constraint("Horizontal", 8),
    Sketcher.Constraint("Vertical", 9),
    Sketcher.Constraint("Coincident", 0, 3, -1, 1),
    Sketcher.Constraint("Coincident", 2, 3, -1, 1),
    Sketcher.Constraint("Equal", 0, 2),
    Sketcher.Constraint("Symmetric", 4, 2, 6, 2, -1, 1),
    Sketcher.Constraint("Symmetric", 3, 2, 8, 2, -2),
    Sketcher.Constraint("DistanceX", 6, 1, 6, 2, 72.0),
    Sketcher.Constraint("DistanceY", 5, 2, 5, 1, 46.0),
    Sketcher.Constraint("DistanceY", 0, 1, -1, 1, 26.175),
    Sketcher.Constraint("Radius", 0, 50.360393),
    Sketcher.Constraint("DistanceY", 3, 1, 3, 2, 48.31124),
])
sketch10.setExpression("Constraints[23]", "Params.sketch10_width")
sketch10.setExpression("Constraints[24]", "Params.sketch10_height")
pad10 = doc.addObject("PartDesign::Pad", "Pad009")
body.addObject(pad10)
pad10.Profile = sketch10
pad10.setExpression("Length", "Params.pad10_length")
pad10.Reversed = True

# Sketch on XY plane
sketch11 = doc.addObject("Sketcher::SketchObject", "Sketch010")
body.addObject(sketch11)
sketch11.AttachmentSupport = (doc.XY_Plane, [""])
sketch11.MapMode = "FlatFace"
sketch11.AttachmentOffset = App.Placement(V(0, 0, -26.175), App.Rotation())
sketch11.addGeometry([
    Part.LineSegment(V(4, 118, 0), V(4, 111, 0)),
    Part.LineSegment(V(4, 111, 0), V(-4, 111, 0)),
    Part.LineSegment(V(-4, 111, 0), V(-4, 118, 0)),
    Part.LineSegment(V(-4, 118, 0), V(4, 118, 0)),
], False)
sketch11.addConstraint([
    Sketcher.Constraint("Coincident", 0, 2, 1, 1),
    Sketcher.Constraint("Coincident", 1, 2, 2, 1),
    Sketcher.Constraint("Coincident", 2, 2, 3, 1),
    Sketcher.Constraint("Coincident", 3, 2, 0, 1),
    Sketcher.Constraint("Vertical", 0),
    Sketcher.Constraint("Horizontal", 1),
    Sketcher.Constraint("Vertical", 2),
    Sketcher.Constraint("Horizontal", 3),
    Sketcher.Constraint("DistanceX", 1, 2, 1, 1, 8.0),
    Sketcher.Constraint("DistanceX", -1, 1, 0, 2, 4.0),
    Sketcher.Constraint("DistanceY", 0, 2, 0, 1, 6.35),
    Sketcher.Constraint("DistanceY", -1, 1, 0, 2, 111.455),
])
sketch11.setExpression("Constraints[8]", "Params.sketch11_width")
sketch11.setExpression("Constraints[10]", "Params.sketch11_height")
pad11 = doc.addObject("PartDesign::Pad", "Pad010")
body.addObject(pad11)
pad11.Profile = sketch11
pad11.setExpression("Length", "Params.pad11_length")

# Sketch on XZ plane
sketch12 = doc.addObject("Sketcher::SketchObject", "Sketch011")
body.addObject(sketch12)
sketch12.AttachmentSupport = (doc.XZ_Plane, [""])
sketch12.MapMode = "FlatFace"
sketch12.AttachmentOffset = App.Placement(V(0, 0, -117.805), App.Rotation())
sketch12.addGeometry([
    Part.LineSegment(V(-4, -3, 0), V(-4, 3, 0)),
    Part.LineSegment(V(-4, 3, 0), V(4, 3, 0)),
    Part.LineSegment(V(4, 3, 0), V(4, -3, 0)),
    Part.LineSegment(V(4, -3, 0), V(-4, -3, 0)),
], False)
sketch12.addConstraint([
    Sketcher.Constraint("Coincident", 0, 2, 1, 1),
    Sketcher.Constraint("Coincident", 1, 2, 2, 1),
    Sketcher.Constraint("Coincident", 2, 2, 3, 1),
    Sketcher.Constraint("Coincident", 3, 2, 0, 1),
    Sketcher.Constraint("Vertical", 0),
    Sketcher.Constraint("Horizontal", 1),
    Sketcher.Constraint("Vertical", 2),
    Sketcher.Constraint("Horizontal", 3),
    Sketcher.Constraint("Symmetric", 0, 2, 2, 2, -1, 1),
    Sketcher.Constraint("DistanceX", 1, 1, 1, 2, 8.0),
    Sketcher.Constraint("DistanceY", 0, 1, 0, 2, 6.0),
])
sketch12.setExpression("Constraints[9]", "Params.sketch12_width")
sketch12.setExpression("Constraints[10]", "Params.sketch12_height")
pocket1 = doc.addObject("PartDesign::Pocket", "Pocket")
body.addObject(pocket1)
pocket1.Profile = sketch12
pocket1.setExpression("Length", "Params.pocket1_length")
pocket1.Reversed = True

# Sketch on XZ plane
sketch13 = doc.addObject("Sketcher::SketchObject", "Sketch012")
body.addObject(sketch13)
sketch13.AttachmentSupport = (doc.XZ_Plane, [""])
sketch13.MapMode = "FlatFace"
sketch13.AttachmentOffset = App.Placement(V(0, 0, -7.35), App.Rotation())
sketch13.addGeometry([
    Part.LineSegment(V(-4, -3, 0), V(-4, 3, 0)),
    Part.LineSegment(V(-4, 3, 0), V(4, 3, 0)),
    Part.LineSegment(V(4, 3, 0), V(4, -3, 0)),
    Part.LineSegment(V(4, -3, 0), V(-4, -3, 0)),
], False)
sketch13.addConstraint([
    Sketcher.Constraint("Coincident", 0, 2, 1, 1),
    Sketcher.Constraint("Coincident", 1, 2, 2, 1),
    Sketcher.Constraint("Coincident", 2, 2, 3, 1),
    Sketcher.Constraint("Coincident", 3, 2, 0, 1),
    Sketcher.Constraint("Vertical", 0),
    Sketcher.Constraint("Horizontal", 1),
    Sketcher.Constraint("Vertical", 2),
    Sketcher.Constraint("Horizontal", 3),
    Sketcher.Constraint("Symmetric", 0, 2, 2, 2, -1, 1),
    Sketcher.Constraint("DistanceX", 1, 1, 1, 2, 8.0),
    Sketcher.Constraint("DistanceY", 0, 1, 0, 2, 6.0),
])
sketch13.setExpression("Constraints[9]", "Params.sketch13_width")
sketch13.setExpression("Constraints[10]", "Params.sketch13_height")
pocket2 = doc.addObject("PartDesign::Pocket", "Pocket001")
body.addObject(pocket2)
pocket2.Profile = sketch13
pocket2.setExpression("Length", "Params.pocket2_length")
pocket2.Reversed = True

# Sketch on XZ plane
sketch14 = doc.addObject("Sketcher::SketchObject", "Sketch013")
body.addObject(sketch14)
sketch14.AttachmentSupport = (doc.XZ_Plane, [""])
sketch14.MapMode = "FlatFace"
sketch14.AttachmentOffset = App.Placement(V(0, 0, -218.805), App.Rotation())
sketch14.addGeometry([
    Part.LineSegment(V(-43.5, -25.3, 0), V(-43.5, 25.3, 0)),  # 0
    Part.ArcOfCircle(Part.Circle(V(0, 0, 0), V(0, 0, 1), 50.4), math.radians(148.68), math.radians(149.83)),  # 1
    Part.LineSegment(V(-43, 26.2, 0), V(43, 26.2, 0)),  # 2
    Part.ArcOfCircle(Part.Circle(V(0, 0, 0), V(0, 0, 1), 50.4), math.radians(30.17), math.radians(31.32)),  # 3
    Part.LineSegment(V(43.5, 25.3, 0), V(43.5, -25.3, 0)),  # 4
    Part.ArcOfCircle(Part.Circle(V(0, 0, 0), V(0, 0, 1), 50.4), math.radians(-31.32), math.radians(-30.17)),  # 5
    Part.LineSegment(V(43, -26.2, 0), V(-43, -26.2, 0)),  # 6
    Part.ArcOfCircle(Part.Circle(V(0, 0, 0), V(0, 0, 1), 50.4), math.radians(-149.83), math.radians(-148.68)),  # 7
], False)
sketch14.addConstraint([
    Sketcher.Constraint("Coincident", 0, 2, 1, 2),
    Sketcher.Constraint("Coincident", 1, 1, 2, 1),
    Sketcher.Constraint("Coincident", 2, 2, 3, 2),
    Sketcher.Constraint("Coincident", 3, 1, 4, 1),
    Sketcher.Constraint("Coincident", 4, 2, 5, 2),
    Sketcher.Constraint("Coincident", 5, 1, 6, 1),
    Sketcher.Constraint("Coincident", 6, 2, 7, 2),
    Sketcher.Constraint("Coincident", 7, 1, 0, 1),
    Sketcher.Constraint("Vertical", 0),
    Sketcher.Constraint("Horizontal", 2),
    Sketcher.Constraint("Vertical", 4),
    Sketcher.Constraint("Horizontal", 6),
    Sketcher.Constraint("Coincident", 1, 3, -1, 1),
    Sketcher.Constraint("Coincident", 3, 3, -1, 1),
    Sketcher.Constraint("Coincident", 5, 3, -1, 1),
    Sketcher.Constraint("Coincident", 7, 3, -1, 1),
    Sketcher.Constraint("Equal", 1, 3),
    Sketcher.Constraint("Equal", 3, 5),
    Sketcher.Constraint("Equal", 5, 7),
    Sketcher.Constraint("Horizontal", 0, 2, 3, 1),
    Sketcher.Constraint("Vertical", 2, 2, 5, 1),
    Sketcher.Constraint("DistanceY", -1, 1, 1, 1, 26.175),
    Sketcher.Constraint("Radius", 1, 50.360393),
    Sketcher.Constraint("DistanceY", 0, 1, 0, 2, 50.62248),
])
pad12 = doc.addObject("PartDesign::Pad", "Pad011")
body.addObject(pad12)
pad12.Profile = sketch14
pad12.setExpression("Length", "Params.pad12_length")
pad12.Reversed = True

# Sketch on XZ plane
sketch15 = doc.addObject("Sketcher::SketchObject", "Sketch014")
body.addObject(sketch15)
sketch15.AttachmentSupport = (doc.XZ_Plane, [""])
sketch15.MapMode = "FlatFace"
sketch15.AttachmentOffset = App.Placement(V(0, 0, -1), App.Rotation())
sketch15.addGeometry([
    Part.ArcOfCircle(Part.Circle(V(0, 0, 0), V(0, 0, 1), 43), math.radians(45), math.radians(135)),
    Part.LineSegment(V(30, 31, 0), V(-30, 31, 0)),
    Part.LineSegment(V(-30, -31, 0), V(30, -31, 0)),
    Part.ArcOfCircle(Part.Circle(V(0, 0, 0), V(0, 0, 1), 43), math.radians(-135), math.radians(-45)),
], False)
sketch15.addConstraint([
    Sketcher.Constraint("Coincident", 0, 1, 1, 1),
    Sketcher.Constraint("Coincident", 1, 2, 0, 2),
    Sketcher.Constraint("Coincident", 2, 1, 3, 1),
    Sketcher.Constraint("Coincident", 3, 2, 2, 2),
    Sketcher.Constraint("Horizontal", 1),
    Sketcher.Constraint("Horizontal", 2),
    Sketcher.Constraint("Coincident", 0, 3, -1, 1),
    Sketcher.Constraint("Coincident", 3, 3, -1, 1),
    Sketcher.Constraint("Equal", 0, 3),
    Sketcher.Constraint("Vertical", 1, 2, 2, 1),
    Sketcher.Constraint("Radius", 0, 43.18),
    Sketcher.Constraint("DistanceY", -1, 1, 0, 1, 30.62),
])
sketch15.setExpression("Constraints[10]", "Params.sketch15_radius")
pocket3 = doc.addObject("PartDesign::Pocket", "Pocket002")
body.addObject(pocket3)
pocket3.Profile = sketch15
pocket3.Type = "ThroughAll"
pocket3.Reversed = True

# Sketch on XZ plane
sketch16 = doc.addObject("Sketcher::SketchObject", "Sketch015")
body.addObject(sketch16)
sketch16.AttachmentSupport = (doc.XZ_Plane, [""])
sketch16.MapMode = "FlatFace"
sketch16.AttachmentOffset = App.Placement(V(0, 0, -224.805), App.Rotation())
sketch16.addGeometry(Part.Circle(V(0, 0, 0), V(0, 0, 1), 51), False)
sketch16.addConstraint([
    Sketcher.Constraint("Coincident", 0, 3, -1, 1),
    Sketcher.Constraint("Diameter", 0, 101.6),
])
sketch16.setExpression("Constraints[1]", "Params.sketch16_diameter")
pad13 = doc.addObject("PartDesign::Pad", "Pad012")
body.addObject(pad13)
pad13.Profile = sketch16
pad13.setExpression("Length", "Params.pad13_length")

# Sketch on XZ plane
sketch17 = doc.addObject("Sketcher::SketchObject", "Sketch016")
body.addObject(sketch17)
sketch17.AttachmentSupport = (doc.XZ_Plane, [""])
sketch17.MapMode = "FlatFace"
sketch17.AttachmentOffset = App.Placement(V(0, 0, -224.805), App.Rotation())
sketch17.addGeometry(Part.Circle(V(0, 0, 0), V(0, 0, 1), 51), False)
sketch17.addConstraint([
    Sketcher.Constraint("Coincident", 0, 3, -1, 1),
    Sketcher.Constraint("Diameter", 0, 101.6),
])
sketch17.setExpression("Constraints[1]", "Params.sketch17_diameter")
pocket4 = doc.addObject("PartDesign::Pocket", "Pocket003")
body.addObject(pocket4)
pocket4.Profile = sketch17
pocket4.setExpression("Length", "Params.pocket4_length")
pocket4.Reversed = True

# Sketch on XZ plane
sketch18 = doc.addObject("Sketcher::SketchObject", "Sketch017")
body.addObject(sketch18)
sketch18.AttachmentSupport = (doc.XZ_Plane, [""])
sketch18.MapMode = "FlatFace"
sketch18.addGeometry([
    Part.Circle(V(0, 0, 0), V(0, 0, 1), 51),  # 0
    Part.ArcOfCircle(Part.Circle(V(0, 0, 0), V(0, 0, 1), 43), math.radians(-135), math.radians(-45)),  # 1
    Part.LineSegment(V(-30, -31, 0), V(30, -31, 0)),  # 2
    Part.ArcOfCircle(Part.Circle(V(0, 0, 0), V(0, 0, 1), 43), math.radians(45), math.radians(135)),  # 3
    Part.LineSegment(V(30, 31, 0), V(-30, 31, 0)),  # 4
], False)
sketch18.addConstraint([
    Sketcher.Constraint("Coincident", 1, 1, 2, 1),
    Sketcher.Constraint("Coincident", 2, 2, 1, 2),
    Sketcher.Constraint("Coincident", 3, 1, 4, 1),
    Sketcher.Constraint("Coincident", 4, 2, 3, 2),
    Sketcher.Constraint("Horizontal", 2),
    Sketcher.Constraint("Horizontal", 4),
    Sketcher.Constraint("Coincident", 0, 3, -1, 1),
    Sketcher.Constraint("Coincident", 1, 3, -1, 1),
    Sketcher.Constraint("Coincident", 3, 3, -1, 1),
    Sketcher.Constraint("Equal", 1, 3),
    Sketcher.Constraint("Vertical", 2, 2, 3, 1),
    Sketcher.Constraint("Diameter", 0, 101.6),
    Sketcher.Constraint("Radius", 1, 43.18),
    Sketcher.Constraint("DistanceY", 1, 1, -1, 1, 30.62),
])
sketch18.setExpression("Constraints[11]", "Params.sketch18_diameter")
sketch18.setExpression("Constraints[12]", "Params.sketch18_radius")
pad14 = doc.addObject("PartDesign::Pad", "Pad013")
body.addObject(pad14)
pad14.Profile = sketch18
pad14.setExpression("Length", "Params.pad14_length")

# Sketch on XZ plane
sketch19 = doc.addObject("Sketcher::SketchObject", "Sketch018")
body.addObject(sketch19)
sketch19.AttachmentSupport = (doc.XZ_Plane, [""])
sketch19.MapMode = "FlatFace"
sketch19.AttachmentOffset = App.Placement(V(0, 0, 5.35), App.Rotation())
sketch19.addGeometry(Part.Circle(V(0, 0, 0), V(0, 0, 1), 61), False)
sketch19.addConstraint([
    Sketcher.Constraint("Coincident", 0, 3, -1, 1),
    Sketcher.Constraint("Diameter", 0, 121.937264),
])
pocket5 = doc.addObject("PartDesign::Pocket", "Pocket004")
body.addObject(pocket5)
pocket5.Profile = sketch19
pocket5.setExpression("Length", "Params.pocket5_length")

doc.recompute()
